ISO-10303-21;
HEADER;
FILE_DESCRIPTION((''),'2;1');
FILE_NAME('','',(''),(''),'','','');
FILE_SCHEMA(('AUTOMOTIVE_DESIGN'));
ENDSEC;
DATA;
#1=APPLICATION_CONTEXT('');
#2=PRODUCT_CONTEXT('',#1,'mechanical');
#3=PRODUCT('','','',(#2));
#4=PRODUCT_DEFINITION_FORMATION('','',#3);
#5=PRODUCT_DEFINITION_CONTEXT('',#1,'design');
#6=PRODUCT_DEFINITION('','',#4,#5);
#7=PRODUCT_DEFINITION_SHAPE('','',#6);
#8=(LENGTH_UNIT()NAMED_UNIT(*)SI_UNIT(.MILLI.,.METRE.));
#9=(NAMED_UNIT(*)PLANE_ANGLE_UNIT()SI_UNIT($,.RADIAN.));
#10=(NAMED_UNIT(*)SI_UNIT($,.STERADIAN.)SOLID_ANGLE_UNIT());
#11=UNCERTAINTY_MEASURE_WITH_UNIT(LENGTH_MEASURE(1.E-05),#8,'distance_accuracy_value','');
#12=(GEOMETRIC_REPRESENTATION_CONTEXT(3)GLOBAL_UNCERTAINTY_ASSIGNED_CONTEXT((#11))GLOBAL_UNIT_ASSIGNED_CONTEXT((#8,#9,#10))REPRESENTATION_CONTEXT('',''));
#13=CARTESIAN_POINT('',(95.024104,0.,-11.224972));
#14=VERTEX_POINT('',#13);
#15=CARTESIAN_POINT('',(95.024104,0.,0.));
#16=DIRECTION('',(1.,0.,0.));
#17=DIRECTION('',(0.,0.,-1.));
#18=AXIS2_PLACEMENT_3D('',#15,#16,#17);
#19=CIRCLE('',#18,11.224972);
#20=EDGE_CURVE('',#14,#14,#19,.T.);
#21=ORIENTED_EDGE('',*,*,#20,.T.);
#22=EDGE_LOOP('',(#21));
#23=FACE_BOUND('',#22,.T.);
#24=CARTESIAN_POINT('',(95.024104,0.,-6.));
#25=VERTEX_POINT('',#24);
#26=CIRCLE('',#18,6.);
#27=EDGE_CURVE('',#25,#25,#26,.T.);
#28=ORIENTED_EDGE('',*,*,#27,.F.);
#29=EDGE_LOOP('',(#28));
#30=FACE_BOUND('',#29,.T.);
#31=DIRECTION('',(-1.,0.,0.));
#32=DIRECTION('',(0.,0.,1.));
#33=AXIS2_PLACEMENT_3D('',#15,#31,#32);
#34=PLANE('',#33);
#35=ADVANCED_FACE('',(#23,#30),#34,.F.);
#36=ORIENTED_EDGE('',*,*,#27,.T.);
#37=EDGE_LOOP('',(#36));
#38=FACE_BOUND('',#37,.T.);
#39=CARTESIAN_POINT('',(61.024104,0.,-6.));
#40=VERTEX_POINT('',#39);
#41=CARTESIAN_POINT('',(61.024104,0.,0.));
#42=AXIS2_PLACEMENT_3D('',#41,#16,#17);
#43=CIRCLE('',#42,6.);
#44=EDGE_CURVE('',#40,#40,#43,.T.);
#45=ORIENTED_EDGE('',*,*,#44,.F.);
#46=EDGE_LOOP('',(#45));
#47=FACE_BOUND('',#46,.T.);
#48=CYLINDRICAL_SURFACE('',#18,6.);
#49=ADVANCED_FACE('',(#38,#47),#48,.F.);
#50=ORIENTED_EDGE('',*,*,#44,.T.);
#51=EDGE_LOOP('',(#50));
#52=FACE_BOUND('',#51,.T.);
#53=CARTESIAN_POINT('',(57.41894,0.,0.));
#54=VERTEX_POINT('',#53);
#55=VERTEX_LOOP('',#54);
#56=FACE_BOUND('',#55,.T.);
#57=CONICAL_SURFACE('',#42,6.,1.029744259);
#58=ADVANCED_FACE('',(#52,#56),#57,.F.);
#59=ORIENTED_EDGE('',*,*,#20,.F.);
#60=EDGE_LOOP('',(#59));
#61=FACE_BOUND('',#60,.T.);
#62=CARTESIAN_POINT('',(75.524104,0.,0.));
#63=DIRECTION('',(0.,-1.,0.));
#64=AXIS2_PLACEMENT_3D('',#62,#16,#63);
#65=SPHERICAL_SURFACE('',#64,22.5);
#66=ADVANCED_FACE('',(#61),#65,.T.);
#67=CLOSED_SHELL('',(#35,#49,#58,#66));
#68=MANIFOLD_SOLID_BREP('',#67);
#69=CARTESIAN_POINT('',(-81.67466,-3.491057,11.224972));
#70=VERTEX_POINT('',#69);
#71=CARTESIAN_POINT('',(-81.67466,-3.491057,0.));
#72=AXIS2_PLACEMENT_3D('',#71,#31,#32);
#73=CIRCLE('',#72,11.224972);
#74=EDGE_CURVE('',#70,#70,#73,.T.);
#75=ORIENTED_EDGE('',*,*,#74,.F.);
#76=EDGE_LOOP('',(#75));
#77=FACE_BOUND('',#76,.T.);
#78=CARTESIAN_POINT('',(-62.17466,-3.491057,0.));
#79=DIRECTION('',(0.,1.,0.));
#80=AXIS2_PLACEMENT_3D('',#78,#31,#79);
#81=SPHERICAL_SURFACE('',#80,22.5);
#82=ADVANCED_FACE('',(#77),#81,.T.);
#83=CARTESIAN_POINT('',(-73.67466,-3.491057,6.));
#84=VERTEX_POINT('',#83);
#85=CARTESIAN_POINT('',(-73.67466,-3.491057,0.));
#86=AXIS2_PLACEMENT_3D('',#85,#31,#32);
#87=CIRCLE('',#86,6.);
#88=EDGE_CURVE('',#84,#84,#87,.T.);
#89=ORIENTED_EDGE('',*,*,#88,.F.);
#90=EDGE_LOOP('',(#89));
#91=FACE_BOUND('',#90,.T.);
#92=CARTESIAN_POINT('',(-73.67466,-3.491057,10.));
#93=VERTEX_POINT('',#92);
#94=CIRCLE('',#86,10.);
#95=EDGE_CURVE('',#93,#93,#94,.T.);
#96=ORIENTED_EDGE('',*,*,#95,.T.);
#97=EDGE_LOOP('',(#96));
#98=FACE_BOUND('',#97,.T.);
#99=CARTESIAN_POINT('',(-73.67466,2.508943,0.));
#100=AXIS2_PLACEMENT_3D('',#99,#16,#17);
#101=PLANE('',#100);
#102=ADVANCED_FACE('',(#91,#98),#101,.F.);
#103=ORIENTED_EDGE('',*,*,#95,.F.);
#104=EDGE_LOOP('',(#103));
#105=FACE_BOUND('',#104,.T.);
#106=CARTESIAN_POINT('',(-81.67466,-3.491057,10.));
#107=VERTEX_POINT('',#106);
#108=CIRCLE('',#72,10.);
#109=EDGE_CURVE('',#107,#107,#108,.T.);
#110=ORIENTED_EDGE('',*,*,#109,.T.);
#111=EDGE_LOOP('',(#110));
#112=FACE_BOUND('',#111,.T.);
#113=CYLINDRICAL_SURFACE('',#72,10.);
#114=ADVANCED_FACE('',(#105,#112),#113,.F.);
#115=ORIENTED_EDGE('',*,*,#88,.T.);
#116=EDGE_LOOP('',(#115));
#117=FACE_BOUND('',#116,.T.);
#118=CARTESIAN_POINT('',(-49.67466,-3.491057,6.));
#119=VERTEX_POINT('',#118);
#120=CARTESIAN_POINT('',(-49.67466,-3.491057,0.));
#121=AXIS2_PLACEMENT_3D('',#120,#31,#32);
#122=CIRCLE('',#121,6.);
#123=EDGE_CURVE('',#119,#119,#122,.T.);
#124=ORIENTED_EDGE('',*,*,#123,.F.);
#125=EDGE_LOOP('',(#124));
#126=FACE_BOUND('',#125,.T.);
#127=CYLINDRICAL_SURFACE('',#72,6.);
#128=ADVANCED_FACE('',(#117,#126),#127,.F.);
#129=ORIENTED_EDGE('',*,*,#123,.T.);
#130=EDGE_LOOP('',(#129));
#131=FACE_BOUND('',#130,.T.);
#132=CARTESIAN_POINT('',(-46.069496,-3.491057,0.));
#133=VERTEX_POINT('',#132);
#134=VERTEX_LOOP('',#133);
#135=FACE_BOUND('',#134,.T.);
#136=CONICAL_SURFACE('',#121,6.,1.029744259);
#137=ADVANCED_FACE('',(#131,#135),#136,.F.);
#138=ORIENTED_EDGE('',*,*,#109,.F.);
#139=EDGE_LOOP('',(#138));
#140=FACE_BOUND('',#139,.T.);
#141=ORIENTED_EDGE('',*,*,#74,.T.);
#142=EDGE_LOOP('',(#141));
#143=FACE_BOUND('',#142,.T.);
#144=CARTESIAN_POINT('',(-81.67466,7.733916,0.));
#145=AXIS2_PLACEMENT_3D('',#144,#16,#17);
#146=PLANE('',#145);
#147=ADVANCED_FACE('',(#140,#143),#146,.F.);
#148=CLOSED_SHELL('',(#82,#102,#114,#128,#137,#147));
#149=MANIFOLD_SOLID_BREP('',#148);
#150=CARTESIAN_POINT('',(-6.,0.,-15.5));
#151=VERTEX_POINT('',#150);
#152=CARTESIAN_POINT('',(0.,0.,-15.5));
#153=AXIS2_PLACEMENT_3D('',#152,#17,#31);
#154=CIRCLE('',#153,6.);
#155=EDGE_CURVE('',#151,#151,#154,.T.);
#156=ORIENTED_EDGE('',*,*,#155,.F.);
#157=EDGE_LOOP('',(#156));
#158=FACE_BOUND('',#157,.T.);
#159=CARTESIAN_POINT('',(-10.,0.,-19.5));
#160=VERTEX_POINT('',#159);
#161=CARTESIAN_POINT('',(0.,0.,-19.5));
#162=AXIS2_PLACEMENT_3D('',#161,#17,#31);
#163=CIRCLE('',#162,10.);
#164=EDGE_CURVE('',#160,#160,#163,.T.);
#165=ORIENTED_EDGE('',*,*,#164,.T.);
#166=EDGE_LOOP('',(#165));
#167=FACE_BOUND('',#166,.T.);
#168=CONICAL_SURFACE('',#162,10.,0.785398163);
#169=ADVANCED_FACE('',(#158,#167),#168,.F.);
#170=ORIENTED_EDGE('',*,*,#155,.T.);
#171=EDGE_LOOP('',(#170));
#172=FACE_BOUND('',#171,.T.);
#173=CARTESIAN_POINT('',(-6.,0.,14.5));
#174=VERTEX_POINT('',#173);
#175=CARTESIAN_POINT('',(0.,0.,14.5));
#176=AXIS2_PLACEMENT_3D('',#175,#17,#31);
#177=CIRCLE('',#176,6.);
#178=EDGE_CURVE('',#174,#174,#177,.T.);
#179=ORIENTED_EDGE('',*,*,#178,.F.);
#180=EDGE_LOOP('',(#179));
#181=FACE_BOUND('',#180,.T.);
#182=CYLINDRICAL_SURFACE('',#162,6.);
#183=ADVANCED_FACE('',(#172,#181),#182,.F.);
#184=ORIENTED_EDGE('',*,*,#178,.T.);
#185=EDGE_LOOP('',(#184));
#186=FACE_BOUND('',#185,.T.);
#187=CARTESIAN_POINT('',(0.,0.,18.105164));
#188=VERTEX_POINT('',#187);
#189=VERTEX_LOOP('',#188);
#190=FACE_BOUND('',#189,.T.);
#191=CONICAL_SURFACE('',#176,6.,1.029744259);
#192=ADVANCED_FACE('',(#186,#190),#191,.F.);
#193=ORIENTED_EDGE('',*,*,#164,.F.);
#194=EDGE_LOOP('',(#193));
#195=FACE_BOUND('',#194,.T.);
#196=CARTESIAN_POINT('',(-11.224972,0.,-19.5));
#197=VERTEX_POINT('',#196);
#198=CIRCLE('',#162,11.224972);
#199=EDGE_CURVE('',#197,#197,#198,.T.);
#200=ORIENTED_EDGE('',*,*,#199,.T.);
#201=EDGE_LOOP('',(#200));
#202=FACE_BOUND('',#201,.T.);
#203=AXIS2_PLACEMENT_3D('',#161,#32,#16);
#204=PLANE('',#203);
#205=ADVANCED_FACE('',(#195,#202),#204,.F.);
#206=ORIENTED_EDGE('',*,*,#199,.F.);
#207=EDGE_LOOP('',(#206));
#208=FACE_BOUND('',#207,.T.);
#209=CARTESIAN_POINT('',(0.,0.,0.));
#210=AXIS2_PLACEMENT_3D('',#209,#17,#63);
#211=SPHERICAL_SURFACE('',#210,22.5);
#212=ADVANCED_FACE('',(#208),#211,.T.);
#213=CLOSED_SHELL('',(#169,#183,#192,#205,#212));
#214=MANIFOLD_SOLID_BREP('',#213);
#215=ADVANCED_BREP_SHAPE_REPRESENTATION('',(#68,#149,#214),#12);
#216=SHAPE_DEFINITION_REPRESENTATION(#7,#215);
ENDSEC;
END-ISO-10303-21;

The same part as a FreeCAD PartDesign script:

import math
import FreeCAD as App
import Part
import Sketcher

V = App.Vector
Q = App.Units.Quantity


def add_polygon(sketch, points):
    """Adds a closed chain of lines whose ends are joined by coincident constraints."""
    first, n = sketch.GeometryCount, len(points)
    for a, b in zip(points, points[1:] + points[:1]):
        sketch.addGeometry(Part.LineSegment(App.Vector(*a, 0), App.Vector(*b, 0)), False)
    for i in range(n):
        sketch.addConstraint(Sketcher.Constraint("Coincident", first + i, 2, first + (i + 1) % n, 1))

doc = App.newDocument("Part")
body = doc.addObject("PartDesign::Body", "Body")

# Sketch on YZ plane
sketch1 = doc.addObject("Sketcher::SketchObject", "Sketch")
body.addObject(sketch1)
sketch1.AttachmentSupport = (doc.YZ_Plane, [""])
sketch1.MapMode = "FlatFace"
sketch1.addGeometry([
    Part.LineSegment(V(0, -20, 0), V(0, 22, 0)),
    Part.ArcOfCircle(Part.Circle(V(0, 0, 0), V(0, 0, 1), 22), math.radians(90), math.radians(240)),
    Part.LineSegment(V(-11, -20, 0), V(0, -20, 0)),
], False)
sketch1.addConstraint([
    Sketcher.Constraint("Coincident", 0, 2, 1, 1),
    Sketcher.Constraint("Coincident", 1, 2, 2, 1),
    Sketcher.Constraint("Coincident", 2, 2, 0, 1),
    Sketcher.Constraint("Vertical", 0),
    Sketcher.Constraint("Horizontal", 2),
    Sketcher.Constraint("Coincident", 1, 3, -1, 1),
    Sketcher.Constraint("PointOnObject", 0, 2, -2),
    Sketcher.Constraint("Radius", 1, Q("22.5 mm")),
    Sketcher.Constraint("DistanceY", 0, 1, 0, 2, Q("42 mm")),
])
revolution = doc.addObject("PartDesign::Revolution", "Revolution")
body.addObject(revolution)
revolution.Profile = sketch1
revolution.ReferenceAxis = (sketch1, ["V_Axis"])
revolution.Angle = 360

# Sketch on YZ plane
sketch2 = doc.addObject("Sketcher::SketchObject", "Sketch001")
body.addObject(sketch2)
sketch2.AttachmentSupport = (doc.YZ_Plane, [""])
sketch2.MapMode = "FlatFace"
add_polygon(sketch2, [(0, 18), (0, -20), (10, -20), (6, -16), (6, 14)])  # lines 0-4
sketch2.addConstraint([
    Sketcher.Constraint("Vertical", 0),
    Sketcher.Constraint("Horizontal", 1),
    Sketcher.Constraint("Vertical", 3),
    Sketcher.Constraint("PointOnObject", 0, 2, -2),
    Sketcher.Constraint("DistanceX", 1, 1, 1, 2, Q("10 mm")),
    Sketcher.Constraint("DistanceY", 3, 1, 3, 2, Q("30 mm")),
    Sketcher.Constraint("Angle", 2, Q("135 deg")),
    Sketcher.Constraint("Angle", 4, Q("149 deg")),
    Sketcher.Constraint("DistanceX", -1, 1, 2, 2, Q("6 mm")),
    Sketcher.Constraint("DistanceY", 0, 2, -1, 1, Q("19.5 mm")),
])
groove = doc.addObject("PartDesign::Groove", "Groove")
body.addObject(groove)
groove.Profile = sketch2
groove.ReferenceAxis = (sketch2, ["V_Axis"])
groove.Angle = 360
body2 = doc.addObject("PartDesign::Body", "Body001")

# Sketch on XY plane
sketch3 = doc.addObject("Sketcher::SketchObject", "Sketch002")
body2.addObject(sketch3)
sketch3.AttachmentSupport = (doc.getObject("XY_Plane001"), [""])
sketch3.MapMode = "FlatFace"
sketch3.addGeometry([
    Part.LineSegment(V(-82, -3, 0), V(-40, -3, 0)),
    Part.ArcOfCircle(Part.Circle(V(-62, -3, 0), V(0, 0, 1), 22), math.radians(0), math.radians(150)),
    Part.LineSegment(V(-82, 8, 0), V(-82, -3, 0)),
], False)
sketch3.addGeometry(Part.LineSegment(V(-82, -3, 0), V(-40, -3, 0)), True)  # axis
sketch3.addConstraint([
    Sketcher.Constraint("Coincident", 0, 2, 1, 1),
    Sketcher.Constraint("Coincident", 1, 2, 2, 1),
    Sketcher.Constraint("Coincident", 2, 2, 0, 1),
    Sketcher.Constraint("Horizontal", 0),
    Sketcher.Constraint("Vertical", 2),
    Sketcher.Constraint("Horizontal", 3),
    Sketcher.Constraint("Coincident", 3, 1, 2, 2),
    Sketcher.Constraint("Horizontal", 1, 3, 0, 2),
    Sketcher.Constraint("Equal", 0, 3),
    Sketcher.Constraint("Radius", 1, Q("22.5 mm")),
    Sketcher.Constraint("DistanceX", 0, 1, 0, 2, Q("42 mm")),
    Sketcher.Constraint("DistanceX", 1, 3, -1, 1, Q("62.17466 mm")),
    Sketcher.Constraint("DistanceY", 1, 3, -1, 1, Q("3.491057 mm")),
])
revolution2 = doc.addObject("PartDesign::Revolution", "Revolution001")
body2.addObject(revolution2)
revolution2.Profile = sketch3
revolution2.ReferenceAxis = (sketch3, ["Axis0"])
revolution2.Angle = 360

# Sketch on XZ plane
sketch4 = doc.addObject("Sketcher::SketchObject", "Sketch003")
body2.addObject(sketch4)
sketch4.AttachmentSupport = (doc.getObject("XZ_Plane001"), [""])
sketch4.MapMode = "FlatFace"
sketch4.AttachmentOffset = App.Placement(V(0, 0, 3.491057), App.Rotation())
add_polygon(sketch4, [(-46.1, 0), (-81.7, 0), (-81.7, 10), (-73.7, 10), (-73.7, 6), (-49.7, 6)])  # lines 0-5
sketch4.addConstraint([
    Sketcher.Constraint("Horizontal", 0),
    Sketcher.Constraint("Vertical", 1),
    Sketcher.Constraint("Horizontal", 2),
    Sketcher.Constraint("Vertical", 3),
    Sketcher.Constraint("Horizontal", 4),
    Sketcher.Constraint("PointOnObject", 0, 2, -1),
    Sketcher.Constraint("DistanceX", 2, 1, 2, 2, Q("8 mm")),
    Sketcher.Constraint("DistanceX", 4, 1, 4, 2, Q("24 mm")),
    Sketcher.Constraint("DistanceY", 1, 1, 1, 2, Q("10 mm")),
    Sketcher.Constraint("DistanceY", 3, 2, 3, 1, Q("4 mm")),
    Sketcher.Constraint("Angle", 5, Q("-59 deg")),
    Sketcher.Constraint("DistanceX", 0, 2, -1, 1, Q("81.67466 mm")),
])
groove2 = doc.addObject("PartDesign::Groove", "Groove001")
body2.addObject(groove2)
groove2.Profile = sketch4
groove2.ReferenceAxis = (sketch4, ["H_Axis"])
groove2.Angle = 360
body3 = doc.addObject("PartDesign::Body", "Body002")

# Sketch on XY plane
sketch5 = doc.addObject("Sketcher::SketchObject", "Sketch004")
body3.addObject(sketch5)
sketch5.AttachmentSupport = (doc.getObject("XY_Plane002"), [""])
sketch5.MapMode = "FlatFace"
sketch5.addGeometry([
    Part.LineSegment(V(95, 0, 0), V(53, 0, 0)),
    Part.ArcOfCircle(Part.Circle(V(76, 0, 0), V(0, 0, 1), 22), math.radians(180), math.radians(330)),
    Part.LineSegment(V(95, -11, 0), V(95, 0, 0)),
], False)
sketch5.addConstraint([
    Sketcher.Constraint("Coincident", 0, 2, 1, 1),
    Sketcher.Constraint("Coincident", 1, 2, 2, 1),
    Sketcher.Constraint("Coincident", 2, 2, 0, 1),
    Sketcher.Constraint("Horizontal", 0),
    Sketcher.Constraint("Vertical", 2),
    Sketcher.Constraint("PointOnObject", 1, 3, -1),
    Sketcher.Constraint("PointOnObject", 0, 2, -1),
    Sketcher.Constraint("Radius", 1, Q("22.5 mm")),
    Sketcher.Constraint("DistanceX", 0, 2, 0, 1, Q("42 mm")),
    Sketcher.Constraint("DistanceX", -1, 1, 1, 3, Q("75.524104 mm")),
])
revolution3 = doc.addObject("PartDesign::Revolution", "Revolution002")
body3.addObject(revolution3)
revolution3.Profile = sketch5
revolution3.ReferenceAxis = (sketch5, ["H_Axis"])
revolution3.Angle = 360

# Sketch on XZ plane
sketch6 = doc.addObject("Sketcher::SketchObject", "Sketch005")
body3.addObject(sketch6)
sketch6.AttachmentSupport = (doc.getObject("XZ_Plane002"), [""])
sketch6.MapMode = "FlatFace"
add_polygon(sketch6, [(57, 0), (95, 0), (95, -6), (61, -6)])  # lines 0-3
sketch6.addConstraint([
    Sketcher.Constraint("Horizontal", 0),
    Sketcher.Constraint("Vertical", 1),
    Sketcher.Constraint("Horizontal", 2),
    Sketcher.Constraint("PointOnObject", 0, 2, -1),
    Sketcher.Constraint("DistanceX", 2, 2, 2, 1, Q("34 mm")),
    Sketcher.Constraint("DistanceY", 1, 2, 1, 1, Q("6 mm")),
    Sketcher.Constraint("Angle", 3, Q("121 deg")),
    Sketcher.Constraint("DistanceX", -1, 1, 3, 2, Q("57.41894 mm")),
])
groove3 = doc.addObject("PartDesign::Groove", "Groove002")
body3.addObject(groove3)
groove3.Profile = sketch6
groove3.ReferenceAxis = (sketch6, ["H_Axis"])
groove3.Angle = 360

doc.recompute()
